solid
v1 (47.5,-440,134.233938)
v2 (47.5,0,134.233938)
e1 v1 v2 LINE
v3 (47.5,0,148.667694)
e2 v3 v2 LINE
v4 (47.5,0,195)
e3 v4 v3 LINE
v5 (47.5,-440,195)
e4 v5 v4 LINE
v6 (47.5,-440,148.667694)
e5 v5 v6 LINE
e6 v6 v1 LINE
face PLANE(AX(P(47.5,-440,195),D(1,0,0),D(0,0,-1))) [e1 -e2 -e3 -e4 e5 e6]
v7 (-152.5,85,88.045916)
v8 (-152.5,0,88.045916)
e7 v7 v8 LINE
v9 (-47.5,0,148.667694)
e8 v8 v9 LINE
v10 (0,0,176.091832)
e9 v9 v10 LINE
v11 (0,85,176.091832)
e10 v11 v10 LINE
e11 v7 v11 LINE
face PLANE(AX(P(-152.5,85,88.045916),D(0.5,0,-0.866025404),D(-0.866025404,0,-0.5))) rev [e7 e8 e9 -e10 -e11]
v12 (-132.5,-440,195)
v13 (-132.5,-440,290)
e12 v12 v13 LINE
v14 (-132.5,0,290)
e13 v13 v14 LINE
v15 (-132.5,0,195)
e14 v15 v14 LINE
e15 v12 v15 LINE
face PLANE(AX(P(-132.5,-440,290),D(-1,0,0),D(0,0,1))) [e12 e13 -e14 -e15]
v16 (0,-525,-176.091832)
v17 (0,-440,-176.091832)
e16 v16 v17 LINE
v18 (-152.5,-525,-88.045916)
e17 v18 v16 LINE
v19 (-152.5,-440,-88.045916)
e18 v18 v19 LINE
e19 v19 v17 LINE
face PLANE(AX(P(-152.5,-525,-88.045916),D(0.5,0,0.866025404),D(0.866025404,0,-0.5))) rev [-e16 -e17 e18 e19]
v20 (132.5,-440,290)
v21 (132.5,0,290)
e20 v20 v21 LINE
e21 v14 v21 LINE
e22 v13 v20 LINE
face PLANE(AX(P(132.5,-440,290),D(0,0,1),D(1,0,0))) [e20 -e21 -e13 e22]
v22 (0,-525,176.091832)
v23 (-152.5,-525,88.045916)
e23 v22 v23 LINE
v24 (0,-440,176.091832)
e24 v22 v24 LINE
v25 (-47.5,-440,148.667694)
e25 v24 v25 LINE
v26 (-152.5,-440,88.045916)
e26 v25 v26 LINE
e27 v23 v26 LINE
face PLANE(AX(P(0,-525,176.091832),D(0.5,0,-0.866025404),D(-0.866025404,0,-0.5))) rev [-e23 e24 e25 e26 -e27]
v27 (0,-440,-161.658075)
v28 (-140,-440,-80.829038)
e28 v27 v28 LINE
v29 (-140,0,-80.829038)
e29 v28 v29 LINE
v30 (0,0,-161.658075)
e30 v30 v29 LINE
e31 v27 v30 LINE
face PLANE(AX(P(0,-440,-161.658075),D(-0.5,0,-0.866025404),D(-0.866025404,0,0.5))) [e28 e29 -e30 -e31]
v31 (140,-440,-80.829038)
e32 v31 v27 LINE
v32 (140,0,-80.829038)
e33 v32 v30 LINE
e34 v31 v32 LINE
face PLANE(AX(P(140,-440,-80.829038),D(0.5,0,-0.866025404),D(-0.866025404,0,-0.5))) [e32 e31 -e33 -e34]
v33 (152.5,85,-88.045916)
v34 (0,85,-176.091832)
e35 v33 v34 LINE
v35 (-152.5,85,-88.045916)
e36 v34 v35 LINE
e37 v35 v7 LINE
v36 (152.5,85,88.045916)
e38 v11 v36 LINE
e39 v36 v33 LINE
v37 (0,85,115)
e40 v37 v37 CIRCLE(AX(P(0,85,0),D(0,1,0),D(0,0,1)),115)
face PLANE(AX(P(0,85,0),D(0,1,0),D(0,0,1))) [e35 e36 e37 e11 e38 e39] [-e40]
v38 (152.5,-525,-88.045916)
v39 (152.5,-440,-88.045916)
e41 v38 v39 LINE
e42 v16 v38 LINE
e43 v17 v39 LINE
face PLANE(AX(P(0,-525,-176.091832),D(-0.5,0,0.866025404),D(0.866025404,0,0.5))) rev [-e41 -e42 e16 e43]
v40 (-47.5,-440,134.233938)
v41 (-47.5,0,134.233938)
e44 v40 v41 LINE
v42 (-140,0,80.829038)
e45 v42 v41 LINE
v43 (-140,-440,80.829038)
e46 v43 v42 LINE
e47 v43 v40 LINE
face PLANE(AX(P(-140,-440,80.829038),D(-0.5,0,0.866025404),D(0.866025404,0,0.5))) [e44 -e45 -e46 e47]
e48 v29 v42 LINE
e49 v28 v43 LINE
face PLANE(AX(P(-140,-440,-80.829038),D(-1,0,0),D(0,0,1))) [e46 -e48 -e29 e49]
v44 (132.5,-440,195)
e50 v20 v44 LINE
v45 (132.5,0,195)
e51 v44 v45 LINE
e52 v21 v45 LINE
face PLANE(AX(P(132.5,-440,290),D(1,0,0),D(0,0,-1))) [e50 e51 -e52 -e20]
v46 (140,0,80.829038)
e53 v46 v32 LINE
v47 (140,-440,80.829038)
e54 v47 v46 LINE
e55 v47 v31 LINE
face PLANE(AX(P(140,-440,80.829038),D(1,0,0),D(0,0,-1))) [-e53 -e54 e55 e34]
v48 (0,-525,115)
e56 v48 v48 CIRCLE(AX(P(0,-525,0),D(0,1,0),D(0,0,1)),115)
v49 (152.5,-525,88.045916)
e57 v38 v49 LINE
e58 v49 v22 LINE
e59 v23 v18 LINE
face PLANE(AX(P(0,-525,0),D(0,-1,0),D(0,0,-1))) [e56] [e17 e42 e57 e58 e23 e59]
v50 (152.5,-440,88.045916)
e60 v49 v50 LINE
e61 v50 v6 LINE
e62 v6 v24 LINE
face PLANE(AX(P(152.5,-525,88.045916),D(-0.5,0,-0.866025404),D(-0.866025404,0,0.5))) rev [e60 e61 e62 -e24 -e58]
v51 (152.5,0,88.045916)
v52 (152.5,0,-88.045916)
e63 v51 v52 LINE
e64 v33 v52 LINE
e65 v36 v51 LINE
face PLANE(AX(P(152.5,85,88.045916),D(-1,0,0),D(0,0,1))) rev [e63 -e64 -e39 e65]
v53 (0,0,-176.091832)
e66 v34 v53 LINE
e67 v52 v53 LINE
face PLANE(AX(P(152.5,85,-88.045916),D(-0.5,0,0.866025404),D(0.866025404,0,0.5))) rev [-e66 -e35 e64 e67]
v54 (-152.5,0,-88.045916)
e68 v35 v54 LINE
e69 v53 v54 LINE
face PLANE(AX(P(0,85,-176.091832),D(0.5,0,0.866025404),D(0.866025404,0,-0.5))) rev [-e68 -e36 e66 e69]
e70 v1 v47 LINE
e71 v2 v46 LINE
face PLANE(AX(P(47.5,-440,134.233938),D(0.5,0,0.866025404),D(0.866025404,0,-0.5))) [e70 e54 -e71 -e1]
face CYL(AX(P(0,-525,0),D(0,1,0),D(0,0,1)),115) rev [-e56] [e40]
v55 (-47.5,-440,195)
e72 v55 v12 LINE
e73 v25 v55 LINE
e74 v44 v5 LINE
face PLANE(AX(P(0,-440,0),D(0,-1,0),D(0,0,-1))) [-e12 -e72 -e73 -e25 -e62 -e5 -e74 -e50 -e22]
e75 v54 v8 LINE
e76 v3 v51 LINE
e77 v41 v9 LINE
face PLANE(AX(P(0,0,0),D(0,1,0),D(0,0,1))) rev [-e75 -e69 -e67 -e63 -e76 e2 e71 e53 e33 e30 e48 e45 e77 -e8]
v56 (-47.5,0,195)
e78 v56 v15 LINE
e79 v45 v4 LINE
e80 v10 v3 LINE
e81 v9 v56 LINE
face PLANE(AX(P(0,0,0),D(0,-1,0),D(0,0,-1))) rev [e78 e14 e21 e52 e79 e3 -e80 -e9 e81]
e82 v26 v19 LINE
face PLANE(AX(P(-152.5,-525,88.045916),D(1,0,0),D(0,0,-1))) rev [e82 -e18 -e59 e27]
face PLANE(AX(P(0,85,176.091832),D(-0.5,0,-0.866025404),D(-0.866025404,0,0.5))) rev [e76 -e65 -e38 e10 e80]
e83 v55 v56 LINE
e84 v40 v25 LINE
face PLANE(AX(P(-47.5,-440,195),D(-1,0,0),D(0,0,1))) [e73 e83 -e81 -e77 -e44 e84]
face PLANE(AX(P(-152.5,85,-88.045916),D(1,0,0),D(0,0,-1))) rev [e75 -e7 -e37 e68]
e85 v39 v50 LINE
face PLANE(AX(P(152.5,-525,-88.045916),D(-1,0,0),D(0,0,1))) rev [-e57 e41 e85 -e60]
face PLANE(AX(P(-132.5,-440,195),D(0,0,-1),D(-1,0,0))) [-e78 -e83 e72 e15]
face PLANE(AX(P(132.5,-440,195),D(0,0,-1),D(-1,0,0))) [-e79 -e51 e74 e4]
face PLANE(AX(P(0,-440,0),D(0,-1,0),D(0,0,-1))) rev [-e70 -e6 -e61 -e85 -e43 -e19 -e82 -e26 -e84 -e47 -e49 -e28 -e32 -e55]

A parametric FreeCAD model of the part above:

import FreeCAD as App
import Part
import Sketcher

V = App.Vector
Q = App.Units.Quantity


def add_polygon(sketch, points):
    """Adds a closed chain of lines whose ends are joined by coincident constraints."""
    first, n = sketch.GeometryCount, len(points)
    for a, b in zip(points, points[1:] + points[:1]):
        sketch.addGeometry(Part.LineSegment(App.Vector(*a, 0), App.Vector(*b, 0)), False)
    for i in range(n):
        sketch.addConstraint(Sketcher.Constraint("Coincident", first + i, 2, first + (i + 1) % n, 1))

doc = App.newDocument("Part")
params = doc.addObject("Spreadsheet::Sheet", "Params")
for row, (alias, value) in enumerate([
    ("pad1_length", "85 mm"),
    ("sketch2_width", "85 mm"),
    ("sketch2_width2", "265 mm"),
    ("sketch2_height", "95 mm"),
    ("pad2_length", "440 mm"),
    ("pad3_length", "85 mm"),
    ("sketch4_diameter", "230 mm"),
], start=1):
    params.set(f"A{row}", alias)
    params.set(f"B{row}", "=" + value)
    params.setAlias(f"B{row}", alias)

body = doc.addObject("PartDesign::Body", "Body")

sketch1 = doc.addObject("Sketcher::SketchObject", "Sketch")
body.addObject(sketch1)
sketch1.AttachmentSupport = (doc.XZ_Plane, [""])
sketch1.MapMode = "FlatFace"
add_polygon(sketch1, [(0, -176), (-152, -88), (-152, 88), (0, 176), (152, 88), (152, -88)])
sketch1.addConstraint(Sketcher.Constraint("Vertical", 1))
sketch1.addConstraint(Sketcher.Constraint("Vertical", 4))
sketch1.addConstraint(Sketcher.Constraint("Symmetric", 0, 2, 3, 2, -1, 1))
sketch1.addConstraint(Sketcher.Constraint("Symmetric", 2, 2, 5, 2, -1, 1))
sketch1.addConstraint(Sketcher.Constraint("PointOnObject", 2, 2, -2))
sketch1.addConstraint(Sketcher.Constraint("Parallel", 2, 5))
sketch1.addConstraint(Sketcher.Constraint("Horizontal", 1, 2, 3, 2))
sketch1.addConstraint(Sketcher.Constraint("Angle", 0, Q("150 deg")))
sketch1.addConstraint(Sketcher.Constraint("DistanceX", 1, 2, 3, 2, 305.0))
sketch1.addConstraint(Sketcher.Constraint("DistanceY", 1, 1, 1, 2, 176.091832))
pad1 = doc.addObject("PartDesign::Pad", "Pad")
body.addObject(pad1)
pad1.Profile = sketch1
pad1.setExpression("Length", "Params.pad1_length")
pad1.Reversed = True

sketch2 = doc.addObject("Sketcher::SketchObject", "Sketch001")
body.addObject(sketch2)
sketch2.AttachmentSupport = (doc.XZ_Plane, [""])
sketch2.MapMode = "FlatFace"
add_polygon(sketch2, [(0, -162), (-140, -81), (-140, 81), (-48, 134), (-48, 195), (-132, 195), (-132, 290), (132, 290), (132, 195), (48, 195), (48, 134), (140, 81), (140, -81)])
sketch2.addConstraint(Sketcher.Constraint("Vertical", 1))
sketch2.addConstraint(Sketcher.Constraint("Vertical", 3))
sketch2.addConstraint(Sketcher.Constraint("Horizontal", 4))
sketch2.addConstraint(Sketcher.Constraint("Vertical", 5))
sketch2.addConstraint(Sketcher.Constraint("Horizontal", 6))
sketch2.addConstraint(Sketcher.Constraint("Vertical", 7))
sketch2.addConstraint(Sketcher.Constraint("Horizontal", 8))
sketch2.addConstraint(Sketcher.Constraint("Vertical", 9))
sketch2.addConstraint(Sketcher.Constraint("Vertical", 11))
sketch2.addConstraint(Sketcher.Constraint("Symmetric", 0, 2, 10, 2, -1, 1))
sketch2.addConstraint(Sketcher.Constraint("Symmetric", 4, 2, 7, 2, -2))
sketch2.addConstraint(Sketcher.Constraint("Symmetric", 2, 2, 9, 2, -2))
sketch2.addConstraint(Sketcher.Constraint("PointOnObject", 12, 2, -2))
sketch2.addConstraint(Sketcher.Constraint("Parallel", 0, 10))
sketch2.addConstraint(Sketcher.Constraint("Parallel", 2, 12))
sketch2.addConstraint(Sketcher.Constraint("Horizontal", 1, 2, 10, 2))
sketch2.addConstraint(Sketcher.Constraint("DistanceX", 4, 2, 4, 1, 85.0))
sketch2.addConstraint(Sketcher.Constraint("DistanceX", 6, 1, 6, 2, 265.0))
sketch2.addConstraint(Sketcher.Constraint("DistanceY", 5, 1, 5, 2, 95.0))
sketch2.addConstraint(Sketcher.Constraint("Angle", 0, Q("150 deg")))
sketch2.addConstraint(Sketcher.Constraint("DistanceX", 0, 2, -1, 1, 140.0))
sketch2.addConstraint(Sketcher.Constraint("DistanceY", -1, 1, 3, 2, 195.0))
sketch2.addConstraint(Sketcher.Constraint("DistanceY", 1, 1, 1, 2, 161.658075))
sketch2.setExpression("Constraints[29]", "Params.sketch2_width")
sketch2.setExpression("Constraints[30]", "Params.sketch2_width2")
sketch2.setExpression("Constraints[31]", "Params.sketch2_height")
pad2 = doc.addObject("PartDesign::Pad", "Pad001")
body.addObject(pad2)
pad2.Profile = sketch2
pad2.setExpression("Length", "Params.pad2_length")

sketch3 = doc.addObject("Sketcher::SketchObject", "Sketch002")
body.addObject(sketch3)
sketch3.AttachmentSupport = (doc.XZ_Plane, [""])
sketch3.MapMode = "FlatFace"
sketch3.AttachmentOffset = App.Placement(V(0, 0, 440), App.Rotation())
add_polygon(sketch3, [(0, -176), (152, -88), (152, 88), (0, 176), (-152, 88), (-152, -88)])
sketch3.addConstraint(Sketcher.Constraint("Vertical", 1))
sketch3.addConstraint(Sketcher.Constraint("Vertical", 4))
sketch3.addConstraint(Sketcher.Constraint("Symmetric", 0, 2, 3, 2, -1, 1))
sketch3.addConstraint(Sketcher.Constraint("Symmetric", 2, 2, 5, 2, -1, 1))
sketch3.addConstraint(Sketcher.Constraint("PointOnObject", 2, 2, -2))
sketch3.addConstraint(Sketcher.Constraint("Parallel", 2, 5))
sketch3.addConstraint(Sketcher.Constraint("Horizontal", 1, 2, 3, 2))
sketch3.addConstraint(Sketcher.Constraint("Angle", 0, Q("30 deg")))
sketch3.addConstraint(Sketcher.Constraint("DistanceX", 3, 2, 1, 2, 305.0))
sketch3.addConstraint(Sketcher.Constraint("DistanceY", 1, 1, 1, 2, 176.091832))
pad3 = doc.addObject("PartDesign::Pad", "Pad002")
body.addObject(pad3)
pad3.Profile = sketch3
pad3.setExpression("Length", "Params.pad3_length")

sketch4 = doc.addObject("Sketcher::SketchObject", "Sketch003")
body.addObject(sketch4)
sketch4.AttachmentSupport = (doc.XZ_Plane, [""])
sketch4.MapMode = "FlatFace"
sketch4.AttachmentOffset = App.Placement(V(0, 0, -85), App.Rotation())
sketch4.addGeometry(Part.Circle(V(0, 0, 0), V(0, 0, 1), 115), False)
sketch4.addConstraint(Sketcher.Constraint("Coincident", 0, 3, -1, 1))
sketch4.addConstraint(Sketcher.Constraint("Diameter", 0, 230.0))
sketch4.setExpression("Constraints[1]", "Params.sketch4_diameter")
pocket1 = doc.addObject("PartDesign::Pocket", "Pocket")
body.addObject(pocket1)
pocket1.Profile = sketch4
pocket1.Type = "ThroughAll"
pocket1.Reversed = True

doc.recompute()
